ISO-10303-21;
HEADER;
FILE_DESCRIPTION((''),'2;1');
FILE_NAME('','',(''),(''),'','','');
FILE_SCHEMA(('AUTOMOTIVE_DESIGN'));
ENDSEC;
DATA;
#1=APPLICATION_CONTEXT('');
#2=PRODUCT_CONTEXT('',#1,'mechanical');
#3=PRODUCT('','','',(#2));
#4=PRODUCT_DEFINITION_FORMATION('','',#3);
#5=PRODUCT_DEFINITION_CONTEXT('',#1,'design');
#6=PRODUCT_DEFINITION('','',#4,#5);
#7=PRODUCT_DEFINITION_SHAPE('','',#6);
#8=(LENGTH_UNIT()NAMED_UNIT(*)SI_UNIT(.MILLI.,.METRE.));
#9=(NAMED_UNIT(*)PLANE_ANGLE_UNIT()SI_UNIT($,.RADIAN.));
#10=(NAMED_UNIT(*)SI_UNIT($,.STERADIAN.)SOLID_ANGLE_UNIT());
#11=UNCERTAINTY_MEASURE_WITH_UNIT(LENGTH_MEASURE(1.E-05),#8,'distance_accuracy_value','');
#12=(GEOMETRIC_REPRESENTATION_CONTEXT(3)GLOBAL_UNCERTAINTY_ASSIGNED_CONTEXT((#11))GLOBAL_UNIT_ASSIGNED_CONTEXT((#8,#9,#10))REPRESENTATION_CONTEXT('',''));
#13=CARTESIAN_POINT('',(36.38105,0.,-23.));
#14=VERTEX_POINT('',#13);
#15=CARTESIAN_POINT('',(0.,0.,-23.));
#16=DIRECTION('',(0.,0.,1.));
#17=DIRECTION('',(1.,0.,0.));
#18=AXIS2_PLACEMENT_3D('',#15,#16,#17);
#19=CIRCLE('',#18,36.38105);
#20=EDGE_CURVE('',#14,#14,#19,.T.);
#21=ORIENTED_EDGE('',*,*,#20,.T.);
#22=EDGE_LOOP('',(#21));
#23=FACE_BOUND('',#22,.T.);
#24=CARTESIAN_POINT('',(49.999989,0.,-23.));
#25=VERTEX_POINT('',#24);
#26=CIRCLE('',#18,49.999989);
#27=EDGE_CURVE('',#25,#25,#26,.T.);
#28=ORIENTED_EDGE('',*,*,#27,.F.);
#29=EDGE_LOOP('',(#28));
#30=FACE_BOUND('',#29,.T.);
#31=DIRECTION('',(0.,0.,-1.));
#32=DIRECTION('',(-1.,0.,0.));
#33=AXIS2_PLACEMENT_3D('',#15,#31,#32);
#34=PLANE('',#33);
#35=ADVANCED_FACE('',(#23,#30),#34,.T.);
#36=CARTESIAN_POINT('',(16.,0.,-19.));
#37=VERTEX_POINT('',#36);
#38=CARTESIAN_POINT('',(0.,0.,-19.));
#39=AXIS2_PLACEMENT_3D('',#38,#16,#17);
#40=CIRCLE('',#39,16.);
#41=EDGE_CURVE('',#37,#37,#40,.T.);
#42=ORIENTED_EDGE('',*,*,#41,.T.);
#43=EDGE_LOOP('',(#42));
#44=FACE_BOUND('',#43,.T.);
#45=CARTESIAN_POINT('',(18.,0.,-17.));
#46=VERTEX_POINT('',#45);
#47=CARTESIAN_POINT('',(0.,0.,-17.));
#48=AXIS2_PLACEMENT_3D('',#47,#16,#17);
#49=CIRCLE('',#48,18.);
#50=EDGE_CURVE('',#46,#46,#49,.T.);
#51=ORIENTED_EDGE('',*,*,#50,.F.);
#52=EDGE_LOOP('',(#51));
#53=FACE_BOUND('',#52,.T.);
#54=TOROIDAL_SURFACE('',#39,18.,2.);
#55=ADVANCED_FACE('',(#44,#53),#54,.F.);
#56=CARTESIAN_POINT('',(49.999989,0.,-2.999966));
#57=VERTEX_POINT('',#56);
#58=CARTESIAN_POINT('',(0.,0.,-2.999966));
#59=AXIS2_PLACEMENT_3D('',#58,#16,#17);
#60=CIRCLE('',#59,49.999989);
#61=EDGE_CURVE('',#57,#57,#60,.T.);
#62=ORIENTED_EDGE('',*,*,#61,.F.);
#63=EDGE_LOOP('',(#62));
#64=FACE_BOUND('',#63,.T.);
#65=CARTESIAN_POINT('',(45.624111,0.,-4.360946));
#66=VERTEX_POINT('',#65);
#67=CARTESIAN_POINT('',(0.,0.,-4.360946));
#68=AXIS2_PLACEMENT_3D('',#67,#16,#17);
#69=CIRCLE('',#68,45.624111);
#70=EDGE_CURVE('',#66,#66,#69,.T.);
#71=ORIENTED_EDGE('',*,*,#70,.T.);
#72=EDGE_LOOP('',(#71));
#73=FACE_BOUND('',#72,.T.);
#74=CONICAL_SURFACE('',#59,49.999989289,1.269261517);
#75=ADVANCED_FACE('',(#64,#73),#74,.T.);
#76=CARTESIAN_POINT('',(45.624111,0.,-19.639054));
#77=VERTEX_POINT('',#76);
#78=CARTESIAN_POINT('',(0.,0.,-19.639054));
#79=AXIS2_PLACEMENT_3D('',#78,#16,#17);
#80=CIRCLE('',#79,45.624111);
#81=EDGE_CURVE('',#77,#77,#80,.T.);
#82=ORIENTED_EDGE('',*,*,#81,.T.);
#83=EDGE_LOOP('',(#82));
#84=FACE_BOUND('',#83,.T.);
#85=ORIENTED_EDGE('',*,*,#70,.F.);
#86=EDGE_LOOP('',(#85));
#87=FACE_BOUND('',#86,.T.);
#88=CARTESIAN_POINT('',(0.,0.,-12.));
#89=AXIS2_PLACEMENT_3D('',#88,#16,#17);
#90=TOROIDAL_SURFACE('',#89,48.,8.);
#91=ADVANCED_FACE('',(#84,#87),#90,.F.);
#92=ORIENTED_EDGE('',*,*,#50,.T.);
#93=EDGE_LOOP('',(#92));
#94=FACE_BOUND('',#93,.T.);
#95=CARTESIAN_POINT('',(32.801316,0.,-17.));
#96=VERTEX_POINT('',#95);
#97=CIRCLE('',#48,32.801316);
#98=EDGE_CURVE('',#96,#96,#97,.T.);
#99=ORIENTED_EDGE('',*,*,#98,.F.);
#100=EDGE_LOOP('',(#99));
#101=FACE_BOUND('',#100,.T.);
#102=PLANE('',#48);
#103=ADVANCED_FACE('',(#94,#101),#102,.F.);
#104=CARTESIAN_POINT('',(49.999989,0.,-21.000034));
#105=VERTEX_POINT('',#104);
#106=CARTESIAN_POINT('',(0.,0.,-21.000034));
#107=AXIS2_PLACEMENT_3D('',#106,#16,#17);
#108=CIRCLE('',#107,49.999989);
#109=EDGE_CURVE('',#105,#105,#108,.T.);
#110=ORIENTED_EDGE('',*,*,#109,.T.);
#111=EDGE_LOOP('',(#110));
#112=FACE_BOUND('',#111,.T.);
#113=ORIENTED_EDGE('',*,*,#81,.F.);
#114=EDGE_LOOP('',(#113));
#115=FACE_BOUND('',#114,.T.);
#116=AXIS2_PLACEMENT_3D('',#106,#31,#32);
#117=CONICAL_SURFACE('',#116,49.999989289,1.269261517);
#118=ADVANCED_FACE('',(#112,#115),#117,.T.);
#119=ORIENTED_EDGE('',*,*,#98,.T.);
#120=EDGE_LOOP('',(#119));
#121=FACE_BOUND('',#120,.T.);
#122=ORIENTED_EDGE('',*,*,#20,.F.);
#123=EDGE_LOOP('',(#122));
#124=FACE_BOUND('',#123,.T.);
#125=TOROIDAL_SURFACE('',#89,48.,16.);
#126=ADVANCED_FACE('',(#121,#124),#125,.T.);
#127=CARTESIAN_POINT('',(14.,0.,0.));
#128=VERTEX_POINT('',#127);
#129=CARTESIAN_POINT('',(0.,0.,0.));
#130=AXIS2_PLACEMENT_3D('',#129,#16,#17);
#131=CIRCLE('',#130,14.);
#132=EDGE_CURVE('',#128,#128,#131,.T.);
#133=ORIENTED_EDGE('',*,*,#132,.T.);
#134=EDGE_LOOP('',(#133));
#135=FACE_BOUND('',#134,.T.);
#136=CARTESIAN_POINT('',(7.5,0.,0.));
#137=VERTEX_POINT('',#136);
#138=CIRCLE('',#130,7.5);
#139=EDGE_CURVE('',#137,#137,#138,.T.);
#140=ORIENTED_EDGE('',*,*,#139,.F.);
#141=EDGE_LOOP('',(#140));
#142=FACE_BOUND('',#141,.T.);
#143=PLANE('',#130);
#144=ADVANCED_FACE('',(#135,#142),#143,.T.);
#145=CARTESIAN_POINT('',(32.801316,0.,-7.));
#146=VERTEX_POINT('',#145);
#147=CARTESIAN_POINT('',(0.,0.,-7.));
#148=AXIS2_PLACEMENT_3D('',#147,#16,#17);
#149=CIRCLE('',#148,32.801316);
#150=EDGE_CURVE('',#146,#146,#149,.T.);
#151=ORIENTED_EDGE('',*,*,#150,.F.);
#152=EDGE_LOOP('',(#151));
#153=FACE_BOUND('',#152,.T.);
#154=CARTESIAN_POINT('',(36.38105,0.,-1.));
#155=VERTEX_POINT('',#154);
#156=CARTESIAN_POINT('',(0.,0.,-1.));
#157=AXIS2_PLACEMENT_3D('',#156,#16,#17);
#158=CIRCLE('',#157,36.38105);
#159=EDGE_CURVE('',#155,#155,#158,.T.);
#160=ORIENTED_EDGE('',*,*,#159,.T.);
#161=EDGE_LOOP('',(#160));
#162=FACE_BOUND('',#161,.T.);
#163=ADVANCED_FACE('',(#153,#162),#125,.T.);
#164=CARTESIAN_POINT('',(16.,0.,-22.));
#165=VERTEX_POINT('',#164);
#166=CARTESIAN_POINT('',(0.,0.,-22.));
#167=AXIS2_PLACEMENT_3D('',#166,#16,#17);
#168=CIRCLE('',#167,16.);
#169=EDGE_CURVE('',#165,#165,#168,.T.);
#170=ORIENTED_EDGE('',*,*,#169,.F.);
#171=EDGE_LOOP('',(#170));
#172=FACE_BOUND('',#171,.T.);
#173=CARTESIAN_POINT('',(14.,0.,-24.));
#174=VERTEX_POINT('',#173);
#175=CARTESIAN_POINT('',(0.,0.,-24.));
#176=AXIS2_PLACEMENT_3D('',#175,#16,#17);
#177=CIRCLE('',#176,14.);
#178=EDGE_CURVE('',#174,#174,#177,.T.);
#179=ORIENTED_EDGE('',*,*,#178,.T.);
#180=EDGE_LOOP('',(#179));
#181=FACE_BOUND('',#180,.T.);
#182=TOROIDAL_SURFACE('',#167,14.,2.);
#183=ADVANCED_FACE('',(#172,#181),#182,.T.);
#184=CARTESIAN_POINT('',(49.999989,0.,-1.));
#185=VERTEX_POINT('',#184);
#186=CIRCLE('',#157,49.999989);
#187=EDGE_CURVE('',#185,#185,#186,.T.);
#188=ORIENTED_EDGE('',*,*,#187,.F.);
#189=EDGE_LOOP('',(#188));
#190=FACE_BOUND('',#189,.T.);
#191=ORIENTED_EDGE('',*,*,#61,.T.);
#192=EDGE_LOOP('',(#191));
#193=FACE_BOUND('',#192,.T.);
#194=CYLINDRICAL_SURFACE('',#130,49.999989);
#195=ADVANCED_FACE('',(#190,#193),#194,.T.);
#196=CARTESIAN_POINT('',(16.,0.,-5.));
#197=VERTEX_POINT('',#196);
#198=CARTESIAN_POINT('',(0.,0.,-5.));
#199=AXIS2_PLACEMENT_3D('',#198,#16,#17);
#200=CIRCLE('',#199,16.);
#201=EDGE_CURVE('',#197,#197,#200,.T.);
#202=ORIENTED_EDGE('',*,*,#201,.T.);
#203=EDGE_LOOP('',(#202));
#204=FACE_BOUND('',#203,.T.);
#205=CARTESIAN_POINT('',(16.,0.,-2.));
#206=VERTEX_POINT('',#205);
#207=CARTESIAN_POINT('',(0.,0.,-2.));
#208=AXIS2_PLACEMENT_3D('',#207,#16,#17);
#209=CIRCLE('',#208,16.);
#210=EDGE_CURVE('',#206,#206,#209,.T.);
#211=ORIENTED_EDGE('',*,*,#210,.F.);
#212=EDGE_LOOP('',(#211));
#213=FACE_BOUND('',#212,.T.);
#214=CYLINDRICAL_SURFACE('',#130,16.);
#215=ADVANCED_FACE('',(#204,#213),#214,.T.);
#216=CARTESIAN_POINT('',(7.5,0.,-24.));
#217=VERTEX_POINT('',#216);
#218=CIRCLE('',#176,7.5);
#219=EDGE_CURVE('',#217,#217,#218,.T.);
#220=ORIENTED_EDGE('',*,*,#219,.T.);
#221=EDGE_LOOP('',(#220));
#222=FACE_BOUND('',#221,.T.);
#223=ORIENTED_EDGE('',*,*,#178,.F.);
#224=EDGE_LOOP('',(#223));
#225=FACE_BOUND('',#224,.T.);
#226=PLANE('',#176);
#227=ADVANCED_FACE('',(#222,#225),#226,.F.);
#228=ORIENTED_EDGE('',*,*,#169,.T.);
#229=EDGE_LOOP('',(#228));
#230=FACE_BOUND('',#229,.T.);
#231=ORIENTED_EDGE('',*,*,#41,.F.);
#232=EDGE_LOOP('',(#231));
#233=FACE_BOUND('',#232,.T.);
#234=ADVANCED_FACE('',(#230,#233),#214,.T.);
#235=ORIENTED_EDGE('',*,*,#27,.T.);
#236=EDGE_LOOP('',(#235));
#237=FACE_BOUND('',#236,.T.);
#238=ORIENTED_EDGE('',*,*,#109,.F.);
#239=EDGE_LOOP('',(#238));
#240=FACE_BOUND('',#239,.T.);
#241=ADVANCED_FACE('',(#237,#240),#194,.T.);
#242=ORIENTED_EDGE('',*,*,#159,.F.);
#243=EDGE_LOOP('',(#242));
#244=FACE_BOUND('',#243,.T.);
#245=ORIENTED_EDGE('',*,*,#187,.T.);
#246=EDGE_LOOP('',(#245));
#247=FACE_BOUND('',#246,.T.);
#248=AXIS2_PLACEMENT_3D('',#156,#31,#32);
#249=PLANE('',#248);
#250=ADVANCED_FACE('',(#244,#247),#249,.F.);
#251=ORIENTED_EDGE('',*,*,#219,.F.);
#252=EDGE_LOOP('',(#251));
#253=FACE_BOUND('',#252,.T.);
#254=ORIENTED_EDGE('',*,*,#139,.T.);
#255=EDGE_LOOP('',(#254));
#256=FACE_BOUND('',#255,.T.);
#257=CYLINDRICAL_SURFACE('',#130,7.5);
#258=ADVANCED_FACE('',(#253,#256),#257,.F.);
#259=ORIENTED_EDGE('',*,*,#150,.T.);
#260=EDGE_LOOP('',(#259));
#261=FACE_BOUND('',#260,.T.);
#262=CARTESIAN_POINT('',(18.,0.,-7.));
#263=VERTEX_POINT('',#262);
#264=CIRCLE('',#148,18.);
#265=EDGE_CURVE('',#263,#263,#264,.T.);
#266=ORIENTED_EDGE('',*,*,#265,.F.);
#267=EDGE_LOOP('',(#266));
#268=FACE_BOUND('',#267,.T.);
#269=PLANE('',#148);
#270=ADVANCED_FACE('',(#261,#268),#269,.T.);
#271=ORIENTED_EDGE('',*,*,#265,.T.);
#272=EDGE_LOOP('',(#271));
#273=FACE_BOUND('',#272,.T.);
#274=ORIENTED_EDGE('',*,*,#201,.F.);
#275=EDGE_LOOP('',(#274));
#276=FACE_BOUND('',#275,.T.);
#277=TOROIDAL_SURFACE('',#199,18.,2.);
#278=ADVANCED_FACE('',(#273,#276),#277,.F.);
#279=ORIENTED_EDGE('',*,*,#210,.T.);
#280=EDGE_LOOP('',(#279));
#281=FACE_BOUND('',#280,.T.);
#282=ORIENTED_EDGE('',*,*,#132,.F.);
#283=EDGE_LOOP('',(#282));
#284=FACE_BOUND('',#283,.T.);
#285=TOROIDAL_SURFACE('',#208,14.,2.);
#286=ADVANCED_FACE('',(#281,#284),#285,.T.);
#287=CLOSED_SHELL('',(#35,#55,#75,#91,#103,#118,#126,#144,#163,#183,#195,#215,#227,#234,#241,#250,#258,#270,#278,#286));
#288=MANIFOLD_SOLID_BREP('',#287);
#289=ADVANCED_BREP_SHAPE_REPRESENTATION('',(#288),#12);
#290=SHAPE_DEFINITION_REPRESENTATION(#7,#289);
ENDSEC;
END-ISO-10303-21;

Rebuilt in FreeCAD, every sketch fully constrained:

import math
import FreeCAD as App
import Part
import Sketcher

V = App.Vector
Q = App.Units.Quantity

doc = App.newDocument("Part")
body = doc.addObject("PartDesign::Body", "Body")

sketch1 = body.newObject("Sketcher::SketchObject", "Sketch")
sketch1.AttachmentSupport = (doc.getObject("XZ_Plane"), [""])
sketch1.MapMode = "FlatFace"
sketch1.addGeometry([
    Part.ArcOfCircle(Part.Circle(V(48, -12, 0), V(0, 0, 1), 16), math.radians(-161.790043), math.radians(-136.567463)),
    Part.LineSegment(V(32.801316, -17, 0), V(18, -17, 0)),
    Part.ArcOfCircle(Part.Circle(V(18, -19, 0), V(0, 0, 1), 2), math.radians(90), math.radians(180)),
    Part.LineSegment(V(16, -19, 0), V(16, -22, 0)),
    Part.ArcOfCircle(Part.Circle(V(14, -22, 0), V(0, 0, 1), 2), math.radians(-90), math.radians(0)),
    Part.LineSegment(V(14, -24, 0), V(7.5, -24, 0)),
    Part.LineSegment(V(7.5, -24, 0), V(7.5, 0, 0)),
    Part.LineSegment(V(7.5, 0, 0), V(14, 0, 0)),
    Part.ArcOfCircle(Part.Circle(V(14, -2, 0), V(0, 0, 1), 2), math.radians(0), math.radians(90)),
    Part.LineSegment(V(16, -2, 0), V(16, -5, 0)),
    Part.ArcOfCircle(Part.Circle(V(18, -5, 0), V(0, 0, 1), 2), math.radians(-180), math.radians(-90)),
    Part.LineSegment(V(18, -7, 0), V(32.801316, -7, 0)),
    Part.ArcOfCircle(Part.Circle(V(48, -12, 0), V(0, 0, 1), 16), math.radians(136.567463), math.radians(161.790043)),
    Part.LineSegment(V(36.38105, -1, 0), V(49.999989, -1, 0)),
    Part.LineSegment(V(49.999989, -1, 0), V(49.999989, -2.999966, 0)),
    Part.LineSegment(V(49.999989, -2.999966, 0), V(45.624111, -4.360946, 0)),
    Part.ArcOfCircle(Part.Circle(V(48, -12, 0), V(0, 0, 1), 8), math.radians(107.276672), math.radians(252.723328)),
    Part.LineSegment(V(45.624111, -19.639054, 0), V(49.999989, -21.000034, 0)),
    Part.LineSegment(V(49.999989, -21.000034, 0), V(49.999989, -23, 0)),
    Part.LineSegment(V(49.999989, -23, 0), V(36.38105, -23, 0)),
], False)
sketch1.addConstraint([
    Sketcher.Constraint("Coincident", 0, 1, 1, 1),
    Sketcher.Constraint("Tangent", 1, 2, 2, 1),
    Sketcher.Constraint("Tangent", 2, 2, 3, 1),
    Sketcher.Constraint("Tangent", 3, 2, 4, 2),
    Sketcher.Constraint("Tangent", 4, 1, 5, 1),
    Sketcher.Constraint("Coincident", 5, 2, 6, 1),
    Sketcher.Constraint("Coincident", 6, 2, 7, 1),
    Sketcher.Constraint("Tangent", 7, 2, 8, 2),
    Sketcher.Constraint("Tangent", 8, 1, 9, 1),
    Sketcher.Constraint("Tangent", 9, 2, 10, 1),
    Sketcher.Constraint("Tangent", 10, 2, 11, 1),
    Sketcher.Constraint("Coincident", 11, 2, 12, 2),
    Sketcher.Constraint("Coincident", 12, 1, 13, 1),
    Sketcher.Constraint("Coincident", 13, 2, 14, 1),
    Sketcher.Constraint("Coincident", 14, 2, 15, 1),
    Sketcher.Constraint("Tangent", 15, 2, 16, 1),
    Sketcher.Constraint("Tangent", 16, 2, 17, 1),
    Sketcher.Constraint("Coincident", 17, 2, 18, 1),
    Sketcher.Constraint("Coincident", 18, 2, 19, 1),
    Sketcher.Constraint("Coincident", 19, 2, 0, 2),
    Sketcher.Constraint("Horizontal", 1),
    Sketcher.Constraint("Vertical", 3),
    Sketcher.Constraint("Horizontal", 5),
    Sketcher.Constraint("Vertical", 6),
    Sketcher.Constraint("Horizontal", 7),
    Sketcher.Constraint("Vertical", 9),
    Sketcher.Constraint("Horizontal", 11),
    Sketcher.Constraint("Horizontal", 13),
    Sketcher.Constraint("Vertical", 14),
    Sketcher.Constraint("Vertical", 18),
    Sketcher.Constraint("Horizontal", 19),
    Sketcher.Constraint("Coincident", 12, 3, 0, 3),
    Sketcher.Constraint("Coincident", 16, 3, 0, 3),
    Sketcher.Constraint("Equal", 2, 4),
    Sketcher.Constraint("Equal", 4, 8),
    Sketcher.Constraint("Equal", 8, 10),
    Sketcher.Constraint("Equal", 0, 12),
    Sketcher.Constraint("PointOnObject", 6, 2, -1),
    Sketcher.Constraint("Vertical", 4, 3, 8, 3),
    Sketcher.Constraint("Vertical", 0, 1, 11, 2),
    Sketcher.Constraint("Vertical", 15, 2, 16, 2),
    Sketcher.Constraint("Vertical", 14, 2, 17, 2),
    Sketcher.Constraint("Vertical", 12, 1, 19, 2),
    Sketcher.Constraint("Equal", 3, 9),
    Sketcher.Constraint("Radius", 0, Q("16 mm")),
    Sketcher.Constraint("Radius", 2, Q("2 mm")),
    Sketcher.Constraint("Radius", 16, Q("8 mm")),
    Sketcher.Constraint("DistanceY", 3, 2, 3, 1, Q("3 mm")),
    Sketcher.Constraint("DistanceY", 6, 1, 6, 2, Q("24 mm")),
    Sketcher.Constraint("DistanceX", 5, 2, 5, 1, Q("6.5 mm")),
    Sketcher.Constraint("DistanceX", -1, 1, 0, 3, Q("48 mm")),
    Sketcher.Constraint("DistanceX", -1, 1, 2, 3, Q("18 mm")),
    Sketcher.Constraint("DistanceY", 12, 1, -1, 1, Q("1 mm")),
    Sketcher.Constraint("DistanceX", 13, 1, 13, 2, Q("13.618939 mm")),
    Sketcher.Constraint("Distance", 15, Q("4.582639 mm")),
])
revolution = body.newObject("PartDesign::Revolution", "Revolution")
revolution.Profile = sketch1
revolution.ReferenceAxis = (sketch1, ["V_Axis"])
revolution.Angle = 360

doc.recompute()
